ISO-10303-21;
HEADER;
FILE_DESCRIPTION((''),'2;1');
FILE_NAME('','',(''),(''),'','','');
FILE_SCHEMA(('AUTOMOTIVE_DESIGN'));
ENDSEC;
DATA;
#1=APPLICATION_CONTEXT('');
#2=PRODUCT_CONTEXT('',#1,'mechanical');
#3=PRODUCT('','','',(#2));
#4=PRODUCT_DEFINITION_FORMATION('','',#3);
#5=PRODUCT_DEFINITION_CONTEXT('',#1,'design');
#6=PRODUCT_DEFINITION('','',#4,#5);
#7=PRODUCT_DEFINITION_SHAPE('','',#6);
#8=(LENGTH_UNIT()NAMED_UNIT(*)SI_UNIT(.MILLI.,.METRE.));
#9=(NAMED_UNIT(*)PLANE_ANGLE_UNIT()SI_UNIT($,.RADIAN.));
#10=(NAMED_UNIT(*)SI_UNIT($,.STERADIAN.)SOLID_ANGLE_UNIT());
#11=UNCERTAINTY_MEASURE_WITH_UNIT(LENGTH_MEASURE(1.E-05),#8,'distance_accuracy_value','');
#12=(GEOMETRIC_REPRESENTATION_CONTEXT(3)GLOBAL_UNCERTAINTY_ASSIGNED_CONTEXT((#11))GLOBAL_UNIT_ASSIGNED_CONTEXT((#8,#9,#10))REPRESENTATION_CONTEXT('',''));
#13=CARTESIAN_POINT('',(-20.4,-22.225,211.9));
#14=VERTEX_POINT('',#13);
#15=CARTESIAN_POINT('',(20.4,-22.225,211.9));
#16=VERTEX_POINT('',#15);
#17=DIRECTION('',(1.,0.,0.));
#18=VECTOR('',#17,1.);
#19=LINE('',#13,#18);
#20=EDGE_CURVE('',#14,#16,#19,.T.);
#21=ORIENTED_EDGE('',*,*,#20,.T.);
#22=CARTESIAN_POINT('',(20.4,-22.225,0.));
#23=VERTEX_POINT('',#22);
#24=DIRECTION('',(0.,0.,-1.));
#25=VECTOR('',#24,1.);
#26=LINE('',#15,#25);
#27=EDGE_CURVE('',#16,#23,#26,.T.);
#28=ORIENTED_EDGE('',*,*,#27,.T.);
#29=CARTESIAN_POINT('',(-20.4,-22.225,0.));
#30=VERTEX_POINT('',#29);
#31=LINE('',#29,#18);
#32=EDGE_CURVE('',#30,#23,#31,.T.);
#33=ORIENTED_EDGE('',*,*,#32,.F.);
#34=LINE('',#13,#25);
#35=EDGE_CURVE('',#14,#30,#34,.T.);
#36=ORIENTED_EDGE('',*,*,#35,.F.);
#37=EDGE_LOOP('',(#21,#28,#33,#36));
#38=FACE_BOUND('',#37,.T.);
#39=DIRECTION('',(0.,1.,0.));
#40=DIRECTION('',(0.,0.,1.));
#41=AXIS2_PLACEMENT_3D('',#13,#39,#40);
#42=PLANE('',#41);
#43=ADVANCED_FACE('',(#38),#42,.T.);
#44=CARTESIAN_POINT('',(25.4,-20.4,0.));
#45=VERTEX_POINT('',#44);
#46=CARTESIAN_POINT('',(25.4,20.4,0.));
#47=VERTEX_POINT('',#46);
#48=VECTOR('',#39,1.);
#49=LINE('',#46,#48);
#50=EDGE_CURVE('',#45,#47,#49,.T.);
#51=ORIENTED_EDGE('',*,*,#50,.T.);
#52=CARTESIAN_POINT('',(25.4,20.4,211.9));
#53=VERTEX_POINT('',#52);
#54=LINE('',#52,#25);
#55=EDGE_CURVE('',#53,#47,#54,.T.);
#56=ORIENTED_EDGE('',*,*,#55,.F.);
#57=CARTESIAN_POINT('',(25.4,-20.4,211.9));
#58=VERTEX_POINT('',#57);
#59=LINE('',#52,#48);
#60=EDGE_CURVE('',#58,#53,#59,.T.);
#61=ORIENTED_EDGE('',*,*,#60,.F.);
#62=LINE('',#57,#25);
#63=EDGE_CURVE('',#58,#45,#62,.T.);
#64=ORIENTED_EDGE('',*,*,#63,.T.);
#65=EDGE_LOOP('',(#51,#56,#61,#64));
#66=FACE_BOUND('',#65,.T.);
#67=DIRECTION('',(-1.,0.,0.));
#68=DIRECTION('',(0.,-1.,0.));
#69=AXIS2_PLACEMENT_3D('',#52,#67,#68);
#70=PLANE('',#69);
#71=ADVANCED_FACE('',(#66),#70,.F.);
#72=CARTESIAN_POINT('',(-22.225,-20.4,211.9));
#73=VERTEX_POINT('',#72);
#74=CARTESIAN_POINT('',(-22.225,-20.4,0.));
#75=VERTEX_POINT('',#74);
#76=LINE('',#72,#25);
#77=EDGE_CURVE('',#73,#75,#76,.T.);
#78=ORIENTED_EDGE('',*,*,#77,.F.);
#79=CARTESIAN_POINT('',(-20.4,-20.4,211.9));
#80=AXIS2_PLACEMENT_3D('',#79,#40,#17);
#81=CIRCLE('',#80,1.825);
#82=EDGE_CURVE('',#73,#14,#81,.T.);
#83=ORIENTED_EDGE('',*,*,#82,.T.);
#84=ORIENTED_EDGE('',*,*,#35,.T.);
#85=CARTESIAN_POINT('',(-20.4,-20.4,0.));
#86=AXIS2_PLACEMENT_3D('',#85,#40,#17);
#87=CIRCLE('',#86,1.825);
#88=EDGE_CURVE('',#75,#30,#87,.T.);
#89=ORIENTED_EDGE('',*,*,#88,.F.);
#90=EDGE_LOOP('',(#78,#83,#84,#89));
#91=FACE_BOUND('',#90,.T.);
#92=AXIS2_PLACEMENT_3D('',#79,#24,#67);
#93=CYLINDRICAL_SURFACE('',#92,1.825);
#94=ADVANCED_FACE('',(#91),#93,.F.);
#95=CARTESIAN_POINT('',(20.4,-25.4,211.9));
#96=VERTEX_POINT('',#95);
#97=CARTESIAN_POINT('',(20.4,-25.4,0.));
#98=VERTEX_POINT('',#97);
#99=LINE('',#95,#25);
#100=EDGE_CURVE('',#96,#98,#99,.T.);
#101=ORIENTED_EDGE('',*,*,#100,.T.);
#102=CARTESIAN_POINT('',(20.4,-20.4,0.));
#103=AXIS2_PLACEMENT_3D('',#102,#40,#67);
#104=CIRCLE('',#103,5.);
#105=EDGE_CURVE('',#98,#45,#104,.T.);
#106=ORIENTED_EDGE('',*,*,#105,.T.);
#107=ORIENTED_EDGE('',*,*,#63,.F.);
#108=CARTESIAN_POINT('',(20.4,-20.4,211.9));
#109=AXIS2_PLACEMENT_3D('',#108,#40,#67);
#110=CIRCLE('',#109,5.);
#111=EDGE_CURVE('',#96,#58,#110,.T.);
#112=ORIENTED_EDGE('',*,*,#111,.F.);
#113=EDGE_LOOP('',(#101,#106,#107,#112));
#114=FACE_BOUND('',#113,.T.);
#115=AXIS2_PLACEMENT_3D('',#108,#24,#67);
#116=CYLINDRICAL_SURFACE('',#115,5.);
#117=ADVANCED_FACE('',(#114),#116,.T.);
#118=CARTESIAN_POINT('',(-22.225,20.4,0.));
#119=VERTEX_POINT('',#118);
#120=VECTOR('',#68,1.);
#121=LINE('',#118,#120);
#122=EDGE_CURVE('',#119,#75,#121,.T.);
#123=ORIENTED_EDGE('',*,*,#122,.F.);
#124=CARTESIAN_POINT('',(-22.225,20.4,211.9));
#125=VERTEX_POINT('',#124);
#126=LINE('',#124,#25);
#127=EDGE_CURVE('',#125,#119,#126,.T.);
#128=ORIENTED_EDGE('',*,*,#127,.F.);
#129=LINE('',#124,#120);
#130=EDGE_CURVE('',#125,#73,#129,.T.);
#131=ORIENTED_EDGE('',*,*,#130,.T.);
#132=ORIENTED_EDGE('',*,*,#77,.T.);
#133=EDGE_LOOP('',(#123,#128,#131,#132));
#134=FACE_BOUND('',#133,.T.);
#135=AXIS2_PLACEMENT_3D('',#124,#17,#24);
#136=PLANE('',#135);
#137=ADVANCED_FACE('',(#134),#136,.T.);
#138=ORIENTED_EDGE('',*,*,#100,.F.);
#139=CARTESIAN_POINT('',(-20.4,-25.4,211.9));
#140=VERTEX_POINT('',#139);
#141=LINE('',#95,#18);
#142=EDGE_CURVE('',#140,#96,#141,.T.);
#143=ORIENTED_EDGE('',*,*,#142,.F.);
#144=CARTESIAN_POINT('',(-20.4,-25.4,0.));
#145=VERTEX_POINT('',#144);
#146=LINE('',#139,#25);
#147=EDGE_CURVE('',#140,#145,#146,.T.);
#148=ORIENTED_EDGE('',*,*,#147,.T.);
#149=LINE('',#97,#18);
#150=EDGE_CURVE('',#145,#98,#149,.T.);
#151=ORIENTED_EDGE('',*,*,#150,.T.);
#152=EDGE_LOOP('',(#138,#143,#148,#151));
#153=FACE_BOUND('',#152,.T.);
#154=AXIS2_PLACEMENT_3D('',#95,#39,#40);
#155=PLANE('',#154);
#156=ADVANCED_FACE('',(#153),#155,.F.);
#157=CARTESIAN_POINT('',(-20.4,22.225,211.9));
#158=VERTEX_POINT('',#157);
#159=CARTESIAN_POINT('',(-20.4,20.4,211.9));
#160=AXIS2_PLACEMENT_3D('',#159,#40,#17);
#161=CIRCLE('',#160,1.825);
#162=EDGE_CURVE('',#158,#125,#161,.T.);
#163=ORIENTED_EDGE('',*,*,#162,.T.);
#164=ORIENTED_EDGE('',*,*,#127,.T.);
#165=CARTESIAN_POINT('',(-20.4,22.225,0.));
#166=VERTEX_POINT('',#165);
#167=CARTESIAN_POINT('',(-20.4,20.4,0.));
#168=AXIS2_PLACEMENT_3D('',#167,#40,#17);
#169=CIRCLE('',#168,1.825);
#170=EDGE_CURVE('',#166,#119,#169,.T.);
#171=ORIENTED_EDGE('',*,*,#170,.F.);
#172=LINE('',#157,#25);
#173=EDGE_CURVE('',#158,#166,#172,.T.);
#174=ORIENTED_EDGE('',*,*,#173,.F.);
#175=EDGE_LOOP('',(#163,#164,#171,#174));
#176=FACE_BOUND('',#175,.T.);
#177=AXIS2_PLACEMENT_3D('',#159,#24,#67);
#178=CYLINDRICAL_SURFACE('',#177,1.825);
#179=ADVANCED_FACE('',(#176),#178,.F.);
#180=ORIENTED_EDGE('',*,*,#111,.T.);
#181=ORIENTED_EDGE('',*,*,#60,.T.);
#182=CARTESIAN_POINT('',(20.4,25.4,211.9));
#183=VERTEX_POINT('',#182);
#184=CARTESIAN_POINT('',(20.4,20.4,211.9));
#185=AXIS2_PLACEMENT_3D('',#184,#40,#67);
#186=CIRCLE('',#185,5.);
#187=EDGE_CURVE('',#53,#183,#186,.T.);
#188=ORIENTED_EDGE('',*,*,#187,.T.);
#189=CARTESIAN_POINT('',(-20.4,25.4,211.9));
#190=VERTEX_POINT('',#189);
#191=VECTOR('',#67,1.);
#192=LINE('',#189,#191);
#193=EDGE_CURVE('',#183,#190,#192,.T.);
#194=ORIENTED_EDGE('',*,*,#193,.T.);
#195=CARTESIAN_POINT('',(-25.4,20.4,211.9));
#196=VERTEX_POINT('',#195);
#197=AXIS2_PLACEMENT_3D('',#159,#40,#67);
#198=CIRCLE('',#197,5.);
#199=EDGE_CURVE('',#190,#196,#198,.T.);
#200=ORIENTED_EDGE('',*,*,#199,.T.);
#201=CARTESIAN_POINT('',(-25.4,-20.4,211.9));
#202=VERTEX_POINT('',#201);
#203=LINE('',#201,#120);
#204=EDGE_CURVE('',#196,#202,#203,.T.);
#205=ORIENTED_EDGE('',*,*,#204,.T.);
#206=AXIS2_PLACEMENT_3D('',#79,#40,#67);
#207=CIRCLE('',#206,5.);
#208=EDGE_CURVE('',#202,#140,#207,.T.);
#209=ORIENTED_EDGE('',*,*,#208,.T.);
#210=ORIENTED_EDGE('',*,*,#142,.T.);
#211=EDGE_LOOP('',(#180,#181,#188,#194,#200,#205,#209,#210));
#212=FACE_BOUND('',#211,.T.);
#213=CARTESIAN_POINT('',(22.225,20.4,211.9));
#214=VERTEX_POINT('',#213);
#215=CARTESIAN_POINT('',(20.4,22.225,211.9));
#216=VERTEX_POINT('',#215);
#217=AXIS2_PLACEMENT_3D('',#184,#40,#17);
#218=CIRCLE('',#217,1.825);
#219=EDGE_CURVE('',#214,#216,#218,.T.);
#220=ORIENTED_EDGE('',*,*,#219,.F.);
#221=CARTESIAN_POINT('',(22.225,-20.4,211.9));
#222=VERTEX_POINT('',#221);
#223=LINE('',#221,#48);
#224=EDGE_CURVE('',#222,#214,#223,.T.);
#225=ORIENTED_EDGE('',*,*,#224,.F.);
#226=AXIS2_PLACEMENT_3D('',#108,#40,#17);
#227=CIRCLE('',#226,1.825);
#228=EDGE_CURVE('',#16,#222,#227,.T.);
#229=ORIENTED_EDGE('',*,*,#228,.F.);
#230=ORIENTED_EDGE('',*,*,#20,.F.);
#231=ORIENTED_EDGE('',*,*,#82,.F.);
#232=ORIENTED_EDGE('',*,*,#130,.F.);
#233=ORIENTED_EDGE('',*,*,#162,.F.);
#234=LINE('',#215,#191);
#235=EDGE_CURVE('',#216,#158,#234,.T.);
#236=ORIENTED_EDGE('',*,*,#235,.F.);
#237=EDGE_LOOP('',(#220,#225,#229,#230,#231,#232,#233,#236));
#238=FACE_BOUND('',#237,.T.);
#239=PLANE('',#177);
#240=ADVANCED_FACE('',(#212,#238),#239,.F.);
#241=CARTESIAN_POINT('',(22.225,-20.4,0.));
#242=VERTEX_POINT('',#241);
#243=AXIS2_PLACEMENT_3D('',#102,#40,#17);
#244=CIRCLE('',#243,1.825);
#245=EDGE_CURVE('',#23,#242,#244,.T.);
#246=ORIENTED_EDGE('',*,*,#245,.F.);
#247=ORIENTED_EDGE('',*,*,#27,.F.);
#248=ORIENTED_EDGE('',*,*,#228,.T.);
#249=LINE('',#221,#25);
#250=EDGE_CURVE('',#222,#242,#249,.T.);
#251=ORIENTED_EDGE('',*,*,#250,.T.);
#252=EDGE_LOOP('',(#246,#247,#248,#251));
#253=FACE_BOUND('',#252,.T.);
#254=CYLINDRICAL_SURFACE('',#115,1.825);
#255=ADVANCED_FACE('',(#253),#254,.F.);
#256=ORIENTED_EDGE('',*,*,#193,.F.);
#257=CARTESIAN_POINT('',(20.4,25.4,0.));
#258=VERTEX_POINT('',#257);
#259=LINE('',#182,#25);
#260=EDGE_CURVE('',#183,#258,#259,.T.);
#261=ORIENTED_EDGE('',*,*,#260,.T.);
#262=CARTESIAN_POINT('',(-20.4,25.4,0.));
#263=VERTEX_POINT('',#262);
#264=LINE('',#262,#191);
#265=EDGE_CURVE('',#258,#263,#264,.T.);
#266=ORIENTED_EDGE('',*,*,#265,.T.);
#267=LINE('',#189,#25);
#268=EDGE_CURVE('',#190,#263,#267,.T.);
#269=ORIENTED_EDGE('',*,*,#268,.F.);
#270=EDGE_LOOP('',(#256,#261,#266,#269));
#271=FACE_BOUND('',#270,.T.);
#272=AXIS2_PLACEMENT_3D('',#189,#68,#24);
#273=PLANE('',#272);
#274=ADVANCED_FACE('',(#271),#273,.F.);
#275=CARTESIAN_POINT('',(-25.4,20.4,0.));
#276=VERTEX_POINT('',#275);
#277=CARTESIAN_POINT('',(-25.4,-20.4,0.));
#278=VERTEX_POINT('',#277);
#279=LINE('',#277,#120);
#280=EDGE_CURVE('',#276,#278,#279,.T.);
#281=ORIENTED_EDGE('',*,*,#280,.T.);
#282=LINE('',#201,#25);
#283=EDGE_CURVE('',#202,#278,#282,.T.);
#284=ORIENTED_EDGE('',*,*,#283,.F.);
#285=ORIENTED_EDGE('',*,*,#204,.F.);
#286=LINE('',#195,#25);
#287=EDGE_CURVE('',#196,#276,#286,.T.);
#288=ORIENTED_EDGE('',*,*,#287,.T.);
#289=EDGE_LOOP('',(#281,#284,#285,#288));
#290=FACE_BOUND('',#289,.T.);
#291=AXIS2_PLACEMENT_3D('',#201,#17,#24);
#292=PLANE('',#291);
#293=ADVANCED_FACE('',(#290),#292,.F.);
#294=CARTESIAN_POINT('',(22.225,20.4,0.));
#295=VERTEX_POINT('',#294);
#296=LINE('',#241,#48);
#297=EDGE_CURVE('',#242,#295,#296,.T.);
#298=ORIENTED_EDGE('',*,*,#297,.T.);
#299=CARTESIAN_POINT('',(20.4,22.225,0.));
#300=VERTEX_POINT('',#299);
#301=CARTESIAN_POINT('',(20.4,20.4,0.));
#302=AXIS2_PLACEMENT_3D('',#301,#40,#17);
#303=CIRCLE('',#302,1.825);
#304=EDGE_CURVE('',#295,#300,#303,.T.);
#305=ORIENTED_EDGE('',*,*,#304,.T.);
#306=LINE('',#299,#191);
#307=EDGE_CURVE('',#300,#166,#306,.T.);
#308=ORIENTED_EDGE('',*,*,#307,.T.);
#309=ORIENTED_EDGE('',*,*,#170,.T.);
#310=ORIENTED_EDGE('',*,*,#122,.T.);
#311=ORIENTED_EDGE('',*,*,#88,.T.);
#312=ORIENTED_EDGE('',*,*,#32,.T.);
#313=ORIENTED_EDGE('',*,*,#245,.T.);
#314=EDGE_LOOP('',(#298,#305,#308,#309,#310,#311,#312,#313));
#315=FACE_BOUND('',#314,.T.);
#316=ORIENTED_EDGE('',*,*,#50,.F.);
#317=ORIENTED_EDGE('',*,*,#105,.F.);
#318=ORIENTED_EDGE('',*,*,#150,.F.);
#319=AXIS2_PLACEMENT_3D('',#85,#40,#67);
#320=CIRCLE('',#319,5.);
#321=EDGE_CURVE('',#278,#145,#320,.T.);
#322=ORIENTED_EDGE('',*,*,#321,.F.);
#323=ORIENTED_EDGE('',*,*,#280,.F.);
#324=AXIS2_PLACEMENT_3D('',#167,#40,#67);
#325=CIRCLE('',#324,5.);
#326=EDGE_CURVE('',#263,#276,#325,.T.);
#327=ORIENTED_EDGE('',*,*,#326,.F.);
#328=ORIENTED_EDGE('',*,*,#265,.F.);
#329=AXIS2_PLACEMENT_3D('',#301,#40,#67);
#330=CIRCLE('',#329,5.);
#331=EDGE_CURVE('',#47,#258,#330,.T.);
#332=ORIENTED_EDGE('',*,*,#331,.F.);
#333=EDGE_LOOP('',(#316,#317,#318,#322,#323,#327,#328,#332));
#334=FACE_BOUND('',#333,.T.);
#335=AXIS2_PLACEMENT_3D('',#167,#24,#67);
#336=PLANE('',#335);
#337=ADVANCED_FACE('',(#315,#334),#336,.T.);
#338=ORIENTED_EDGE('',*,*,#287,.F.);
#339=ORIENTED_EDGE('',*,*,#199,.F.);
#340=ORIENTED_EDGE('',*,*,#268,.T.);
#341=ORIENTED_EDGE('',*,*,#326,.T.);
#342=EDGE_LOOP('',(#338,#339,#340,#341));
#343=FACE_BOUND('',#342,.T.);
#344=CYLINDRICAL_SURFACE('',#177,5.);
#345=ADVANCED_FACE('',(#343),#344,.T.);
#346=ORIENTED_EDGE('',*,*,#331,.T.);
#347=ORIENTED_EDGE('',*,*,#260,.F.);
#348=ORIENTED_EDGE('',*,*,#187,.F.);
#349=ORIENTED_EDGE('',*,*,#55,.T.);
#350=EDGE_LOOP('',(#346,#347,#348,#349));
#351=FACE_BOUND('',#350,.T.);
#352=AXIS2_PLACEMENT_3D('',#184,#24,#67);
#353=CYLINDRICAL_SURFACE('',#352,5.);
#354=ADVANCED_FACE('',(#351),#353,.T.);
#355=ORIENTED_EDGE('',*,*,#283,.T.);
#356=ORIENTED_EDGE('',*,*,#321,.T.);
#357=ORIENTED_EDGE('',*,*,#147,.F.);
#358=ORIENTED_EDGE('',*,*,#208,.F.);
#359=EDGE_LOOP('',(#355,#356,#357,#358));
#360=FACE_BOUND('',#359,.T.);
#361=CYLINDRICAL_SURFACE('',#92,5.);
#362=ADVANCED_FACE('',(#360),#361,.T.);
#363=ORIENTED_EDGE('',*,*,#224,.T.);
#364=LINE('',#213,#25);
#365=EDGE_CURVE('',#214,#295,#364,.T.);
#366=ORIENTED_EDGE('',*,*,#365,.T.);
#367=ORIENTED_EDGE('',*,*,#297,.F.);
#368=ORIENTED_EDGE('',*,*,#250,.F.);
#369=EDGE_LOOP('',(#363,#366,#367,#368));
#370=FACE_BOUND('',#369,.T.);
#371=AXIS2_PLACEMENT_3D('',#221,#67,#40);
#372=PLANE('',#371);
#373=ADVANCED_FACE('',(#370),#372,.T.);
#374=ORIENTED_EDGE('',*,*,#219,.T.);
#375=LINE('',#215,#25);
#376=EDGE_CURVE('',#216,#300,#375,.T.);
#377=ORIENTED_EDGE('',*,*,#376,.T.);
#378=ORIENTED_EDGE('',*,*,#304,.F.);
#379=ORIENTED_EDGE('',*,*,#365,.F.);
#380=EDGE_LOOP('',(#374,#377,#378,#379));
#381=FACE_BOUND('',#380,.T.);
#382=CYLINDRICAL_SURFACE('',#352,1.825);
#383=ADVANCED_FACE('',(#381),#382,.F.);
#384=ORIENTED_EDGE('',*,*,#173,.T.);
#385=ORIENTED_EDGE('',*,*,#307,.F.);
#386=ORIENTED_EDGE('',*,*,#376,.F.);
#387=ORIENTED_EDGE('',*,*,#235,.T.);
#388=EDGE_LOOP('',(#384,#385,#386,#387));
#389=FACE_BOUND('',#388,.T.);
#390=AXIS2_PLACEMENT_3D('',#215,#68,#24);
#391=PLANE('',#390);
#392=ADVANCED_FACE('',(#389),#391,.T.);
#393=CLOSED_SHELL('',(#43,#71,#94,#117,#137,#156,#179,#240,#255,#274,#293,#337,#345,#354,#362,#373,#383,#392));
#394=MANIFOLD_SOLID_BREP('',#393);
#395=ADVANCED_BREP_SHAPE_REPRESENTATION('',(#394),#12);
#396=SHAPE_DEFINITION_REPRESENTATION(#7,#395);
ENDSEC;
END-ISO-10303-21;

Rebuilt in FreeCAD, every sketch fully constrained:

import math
import FreeCAD as App
import Part
import Sketcher
from FreeCAD import Vector
Q = App.Units.Quantity

doc = App.newDocument("Part")
body = doc.addObject("PartDesign::Body", "Body")

sketch1 = body.newObject("Sketcher::SketchObject", "Sketch")
sketch1.AttachmentSupport = (doc.getObject("XY_Plane"), [""])
sketch1.MapMode = "FlatFace"
sketch1.addGeometry(Part.LineSegment(Vector(20.4, 25.4, 0), Vector(-20.4, 25.4, 0)), False)
sketch1.addGeometry(Part.ArcOfCircle(Part.Circle(Vector(-20.4, 20.4, 0), Vector(0, 0, 1), 5), math.radians(90), math.radians(180)), False)
sketch1.addGeometry(Part.LineSegment(Vector(-25.4, 20.4, 0), Vector(-25.4, -20.4, 0)), False)
sketch1.addGeometry(Part.ArcOfCircle(Part.Circle(Vector(-20.4, -20.4, 0), Vector(0, 0, 1), 5), math.radians(180), math.radians(270)), False)
sketch1.addGeometry(Part.LineSegment(Vector(-20.4, -25.4, 0), Vector(20.4, -25.4, 0)), False)
sketch1.addGeometry(Part.ArcOfCircle(Part.Circle(Vector(20.4, -20.4, 0), Vector(0, 0, 1), 5), math.radians(-90), math.radians(0)), False)
sketch1.addGeometry(Part.LineSegment(Vector(25.4, -20.4, 0), Vector(25.4, 20.4, 0)), False)
sketch1.addGeometry(Part.ArcOfCircle(Part.Circle(Vector(20.4, 20.4, 0), Vector(0, 0, 1), 5), math.radians(0), math.radians(90)), False)
sketch1.addGeometry(Part.ArcOfCircle(Part.Circle(Vector(-20.4, 20.4, 0), Vector(0, 0, 1), 1.8), math.radians(90), math.radians(180)), False)
sketch1.addGeometry(Part.LineSegment(Vector(-20.4, 22.2, 0), Vector(20.4, 22.2, 0)), False)
sketch1.addGeometry(Part.ArcOfCircle(Part.Circle(Vector(20.4, 20.4, 0), Vector(0, 0, 1), 1.8), math.radians(0), math.radians(90)), False)
sketch1.addGeometry(Part.LineSegment(Vector(22.2, 20.4, 0), Vector(22.2, -20.4, 0)), False)
sketch1.addGeometry(Part.ArcOfCircle(Part.Circle(Vector(20.4, -20.4, 0), Vector(0, 0, 1), 1.8), math.radians(-90), math.radians(0)), False)
sketch1.addGeometry(Part.LineSegment(Vector(20.4, -22.2, 0), Vector(-20.4, -22.2, 0)), False)
sketch1.addGeometry(Part.ArcOfCircle(Part.Circle(Vector(-20.4, -20.4, 0), Vector(0, 0, 1), 1.8), math.radians(180), math.radians(270)), False)
sketch1.addGeometry(Part.LineSegment(Vector(-22.2, -20.4, 0), Vector(-22.2, 20.4, 0)), False)
sketch1.addConstraint(Sketcher.Constraint("Tangent", 0, 2, 1, 1))
sketch1.addConstraint(Sketcher.Constraint("Tangent", 1, 2, 2, 1))
sketch1.addConstraint(Sketcher.Constraint("Tangent", 2, 2, 3, 1))
sketch1.addConstraint(Sketcher.Constraint("Tangent", 3, 2, 4, 1))
sketch1.addConstraint(Sketcher.Constraint("Tangent", 4, 2, 5, 1))
sketch1.addConstraint(Sketcher.Constraint("Tangent", 5, 2, 6, 1))
sketch1.addConstraint(Sketcher.Constraint("Tangent", 6, 2, 7, 1))
sketch1.addConstraint(Sketcher.Constraint("Tangent", 7, 2, 0, 1))
sketch1.addConstraint(Sketcher.Constraint("Tangent", 8, 1, 9, 1))
sketch1.addConstraint(Sketcher.Constraint("Tangent", 9, 2, 10, 2))
sketch1.addConstraint(Sketcher.Constraint("Tangent", 10, 1, 11, 1))
sketch1.addConstraint(Sketcher.Constraint("Tangent", 11, 2, 12, 2))
sketch1.addConstraint(Sketcher.Constraint("Tangent", 12, 1, 13, 1))
sketch1.addConstraint(Sketcher.Constraint("Tangent", 13, 2, 14, 2))
sketch1.addConstraint(Sketcher.Constraint("Tangent", 14, 1, 15, 1))
sketch1.addConstraint(Sketcher.Constraint("Tangent", 15, 2, 8, 2))
sketch1.addConstraint(Sketcher.Constraint("Horizontal", 0))
sketch1.addConstraint(Sketcher.Constraint("Vertical", 2))
sketch1.addConstraint(Sketcher.Constraint("Horizontal", 4))
sketch1.addConstraint(Sketcher.Constraint("Vertical", 6))
sketch1.addConstraint(Sketcher.Constraint("Horizontal", 9))
sketch1.addConstraint(Sketcher.Constraint("Vertical", 11))
sketch1.addConstraint(Sketcher.Constraint("Horizontal", 13))
sketch1.addConstraint(Sketcher.Constraint("Vertical", 15))
sketch1.addConstraint(Sketcher.Constraint("Coincident", 8, 3, 1, 3))
sketch1.addConstraint(Sketcher.Constraint("Coincident", 10, 3, 7, 3))
sketch1.addConstraint(Sketcher.Constraint("Coincident", 12, 3, 5, 3))
sketch1.addConstraint(Sketcher.Constraint("Equal", 1, 3))
sketch1.addConstraint(Sketcher.Constraint("Equal", 3, 5))
sketch1.addConstraint(Sketcher.Constraint("Equal", 5, 7))
sketch1.addConstraint(Sketcher.Constraint("Equal", 12, 14))
sketch1.addConstraint(Sketcher.Constraint("Symmetric", 1, 3, 5, 3, -1, 1))
sketch1.addConstraint(Sketcher.Constraint("Equal", 13, 2))
sketch1.addConstraint(Sketcher.Constraint("Radius", 1, Q("5 mm")))
sketch1.addConstraint(Sketcher.Constraint("DistanceX", 0, 2, 0, 1, Q("40.8 mm")))
sketch1.addConstraint(Sketcher.Constraint("Radius", 8, Q("1.825 mm")))
pad1 = body.newObject("PartDesign::Pad", "Pad")
pad1.Profile = sketch1
pad1.Length = 211.9

doc.recompute()
